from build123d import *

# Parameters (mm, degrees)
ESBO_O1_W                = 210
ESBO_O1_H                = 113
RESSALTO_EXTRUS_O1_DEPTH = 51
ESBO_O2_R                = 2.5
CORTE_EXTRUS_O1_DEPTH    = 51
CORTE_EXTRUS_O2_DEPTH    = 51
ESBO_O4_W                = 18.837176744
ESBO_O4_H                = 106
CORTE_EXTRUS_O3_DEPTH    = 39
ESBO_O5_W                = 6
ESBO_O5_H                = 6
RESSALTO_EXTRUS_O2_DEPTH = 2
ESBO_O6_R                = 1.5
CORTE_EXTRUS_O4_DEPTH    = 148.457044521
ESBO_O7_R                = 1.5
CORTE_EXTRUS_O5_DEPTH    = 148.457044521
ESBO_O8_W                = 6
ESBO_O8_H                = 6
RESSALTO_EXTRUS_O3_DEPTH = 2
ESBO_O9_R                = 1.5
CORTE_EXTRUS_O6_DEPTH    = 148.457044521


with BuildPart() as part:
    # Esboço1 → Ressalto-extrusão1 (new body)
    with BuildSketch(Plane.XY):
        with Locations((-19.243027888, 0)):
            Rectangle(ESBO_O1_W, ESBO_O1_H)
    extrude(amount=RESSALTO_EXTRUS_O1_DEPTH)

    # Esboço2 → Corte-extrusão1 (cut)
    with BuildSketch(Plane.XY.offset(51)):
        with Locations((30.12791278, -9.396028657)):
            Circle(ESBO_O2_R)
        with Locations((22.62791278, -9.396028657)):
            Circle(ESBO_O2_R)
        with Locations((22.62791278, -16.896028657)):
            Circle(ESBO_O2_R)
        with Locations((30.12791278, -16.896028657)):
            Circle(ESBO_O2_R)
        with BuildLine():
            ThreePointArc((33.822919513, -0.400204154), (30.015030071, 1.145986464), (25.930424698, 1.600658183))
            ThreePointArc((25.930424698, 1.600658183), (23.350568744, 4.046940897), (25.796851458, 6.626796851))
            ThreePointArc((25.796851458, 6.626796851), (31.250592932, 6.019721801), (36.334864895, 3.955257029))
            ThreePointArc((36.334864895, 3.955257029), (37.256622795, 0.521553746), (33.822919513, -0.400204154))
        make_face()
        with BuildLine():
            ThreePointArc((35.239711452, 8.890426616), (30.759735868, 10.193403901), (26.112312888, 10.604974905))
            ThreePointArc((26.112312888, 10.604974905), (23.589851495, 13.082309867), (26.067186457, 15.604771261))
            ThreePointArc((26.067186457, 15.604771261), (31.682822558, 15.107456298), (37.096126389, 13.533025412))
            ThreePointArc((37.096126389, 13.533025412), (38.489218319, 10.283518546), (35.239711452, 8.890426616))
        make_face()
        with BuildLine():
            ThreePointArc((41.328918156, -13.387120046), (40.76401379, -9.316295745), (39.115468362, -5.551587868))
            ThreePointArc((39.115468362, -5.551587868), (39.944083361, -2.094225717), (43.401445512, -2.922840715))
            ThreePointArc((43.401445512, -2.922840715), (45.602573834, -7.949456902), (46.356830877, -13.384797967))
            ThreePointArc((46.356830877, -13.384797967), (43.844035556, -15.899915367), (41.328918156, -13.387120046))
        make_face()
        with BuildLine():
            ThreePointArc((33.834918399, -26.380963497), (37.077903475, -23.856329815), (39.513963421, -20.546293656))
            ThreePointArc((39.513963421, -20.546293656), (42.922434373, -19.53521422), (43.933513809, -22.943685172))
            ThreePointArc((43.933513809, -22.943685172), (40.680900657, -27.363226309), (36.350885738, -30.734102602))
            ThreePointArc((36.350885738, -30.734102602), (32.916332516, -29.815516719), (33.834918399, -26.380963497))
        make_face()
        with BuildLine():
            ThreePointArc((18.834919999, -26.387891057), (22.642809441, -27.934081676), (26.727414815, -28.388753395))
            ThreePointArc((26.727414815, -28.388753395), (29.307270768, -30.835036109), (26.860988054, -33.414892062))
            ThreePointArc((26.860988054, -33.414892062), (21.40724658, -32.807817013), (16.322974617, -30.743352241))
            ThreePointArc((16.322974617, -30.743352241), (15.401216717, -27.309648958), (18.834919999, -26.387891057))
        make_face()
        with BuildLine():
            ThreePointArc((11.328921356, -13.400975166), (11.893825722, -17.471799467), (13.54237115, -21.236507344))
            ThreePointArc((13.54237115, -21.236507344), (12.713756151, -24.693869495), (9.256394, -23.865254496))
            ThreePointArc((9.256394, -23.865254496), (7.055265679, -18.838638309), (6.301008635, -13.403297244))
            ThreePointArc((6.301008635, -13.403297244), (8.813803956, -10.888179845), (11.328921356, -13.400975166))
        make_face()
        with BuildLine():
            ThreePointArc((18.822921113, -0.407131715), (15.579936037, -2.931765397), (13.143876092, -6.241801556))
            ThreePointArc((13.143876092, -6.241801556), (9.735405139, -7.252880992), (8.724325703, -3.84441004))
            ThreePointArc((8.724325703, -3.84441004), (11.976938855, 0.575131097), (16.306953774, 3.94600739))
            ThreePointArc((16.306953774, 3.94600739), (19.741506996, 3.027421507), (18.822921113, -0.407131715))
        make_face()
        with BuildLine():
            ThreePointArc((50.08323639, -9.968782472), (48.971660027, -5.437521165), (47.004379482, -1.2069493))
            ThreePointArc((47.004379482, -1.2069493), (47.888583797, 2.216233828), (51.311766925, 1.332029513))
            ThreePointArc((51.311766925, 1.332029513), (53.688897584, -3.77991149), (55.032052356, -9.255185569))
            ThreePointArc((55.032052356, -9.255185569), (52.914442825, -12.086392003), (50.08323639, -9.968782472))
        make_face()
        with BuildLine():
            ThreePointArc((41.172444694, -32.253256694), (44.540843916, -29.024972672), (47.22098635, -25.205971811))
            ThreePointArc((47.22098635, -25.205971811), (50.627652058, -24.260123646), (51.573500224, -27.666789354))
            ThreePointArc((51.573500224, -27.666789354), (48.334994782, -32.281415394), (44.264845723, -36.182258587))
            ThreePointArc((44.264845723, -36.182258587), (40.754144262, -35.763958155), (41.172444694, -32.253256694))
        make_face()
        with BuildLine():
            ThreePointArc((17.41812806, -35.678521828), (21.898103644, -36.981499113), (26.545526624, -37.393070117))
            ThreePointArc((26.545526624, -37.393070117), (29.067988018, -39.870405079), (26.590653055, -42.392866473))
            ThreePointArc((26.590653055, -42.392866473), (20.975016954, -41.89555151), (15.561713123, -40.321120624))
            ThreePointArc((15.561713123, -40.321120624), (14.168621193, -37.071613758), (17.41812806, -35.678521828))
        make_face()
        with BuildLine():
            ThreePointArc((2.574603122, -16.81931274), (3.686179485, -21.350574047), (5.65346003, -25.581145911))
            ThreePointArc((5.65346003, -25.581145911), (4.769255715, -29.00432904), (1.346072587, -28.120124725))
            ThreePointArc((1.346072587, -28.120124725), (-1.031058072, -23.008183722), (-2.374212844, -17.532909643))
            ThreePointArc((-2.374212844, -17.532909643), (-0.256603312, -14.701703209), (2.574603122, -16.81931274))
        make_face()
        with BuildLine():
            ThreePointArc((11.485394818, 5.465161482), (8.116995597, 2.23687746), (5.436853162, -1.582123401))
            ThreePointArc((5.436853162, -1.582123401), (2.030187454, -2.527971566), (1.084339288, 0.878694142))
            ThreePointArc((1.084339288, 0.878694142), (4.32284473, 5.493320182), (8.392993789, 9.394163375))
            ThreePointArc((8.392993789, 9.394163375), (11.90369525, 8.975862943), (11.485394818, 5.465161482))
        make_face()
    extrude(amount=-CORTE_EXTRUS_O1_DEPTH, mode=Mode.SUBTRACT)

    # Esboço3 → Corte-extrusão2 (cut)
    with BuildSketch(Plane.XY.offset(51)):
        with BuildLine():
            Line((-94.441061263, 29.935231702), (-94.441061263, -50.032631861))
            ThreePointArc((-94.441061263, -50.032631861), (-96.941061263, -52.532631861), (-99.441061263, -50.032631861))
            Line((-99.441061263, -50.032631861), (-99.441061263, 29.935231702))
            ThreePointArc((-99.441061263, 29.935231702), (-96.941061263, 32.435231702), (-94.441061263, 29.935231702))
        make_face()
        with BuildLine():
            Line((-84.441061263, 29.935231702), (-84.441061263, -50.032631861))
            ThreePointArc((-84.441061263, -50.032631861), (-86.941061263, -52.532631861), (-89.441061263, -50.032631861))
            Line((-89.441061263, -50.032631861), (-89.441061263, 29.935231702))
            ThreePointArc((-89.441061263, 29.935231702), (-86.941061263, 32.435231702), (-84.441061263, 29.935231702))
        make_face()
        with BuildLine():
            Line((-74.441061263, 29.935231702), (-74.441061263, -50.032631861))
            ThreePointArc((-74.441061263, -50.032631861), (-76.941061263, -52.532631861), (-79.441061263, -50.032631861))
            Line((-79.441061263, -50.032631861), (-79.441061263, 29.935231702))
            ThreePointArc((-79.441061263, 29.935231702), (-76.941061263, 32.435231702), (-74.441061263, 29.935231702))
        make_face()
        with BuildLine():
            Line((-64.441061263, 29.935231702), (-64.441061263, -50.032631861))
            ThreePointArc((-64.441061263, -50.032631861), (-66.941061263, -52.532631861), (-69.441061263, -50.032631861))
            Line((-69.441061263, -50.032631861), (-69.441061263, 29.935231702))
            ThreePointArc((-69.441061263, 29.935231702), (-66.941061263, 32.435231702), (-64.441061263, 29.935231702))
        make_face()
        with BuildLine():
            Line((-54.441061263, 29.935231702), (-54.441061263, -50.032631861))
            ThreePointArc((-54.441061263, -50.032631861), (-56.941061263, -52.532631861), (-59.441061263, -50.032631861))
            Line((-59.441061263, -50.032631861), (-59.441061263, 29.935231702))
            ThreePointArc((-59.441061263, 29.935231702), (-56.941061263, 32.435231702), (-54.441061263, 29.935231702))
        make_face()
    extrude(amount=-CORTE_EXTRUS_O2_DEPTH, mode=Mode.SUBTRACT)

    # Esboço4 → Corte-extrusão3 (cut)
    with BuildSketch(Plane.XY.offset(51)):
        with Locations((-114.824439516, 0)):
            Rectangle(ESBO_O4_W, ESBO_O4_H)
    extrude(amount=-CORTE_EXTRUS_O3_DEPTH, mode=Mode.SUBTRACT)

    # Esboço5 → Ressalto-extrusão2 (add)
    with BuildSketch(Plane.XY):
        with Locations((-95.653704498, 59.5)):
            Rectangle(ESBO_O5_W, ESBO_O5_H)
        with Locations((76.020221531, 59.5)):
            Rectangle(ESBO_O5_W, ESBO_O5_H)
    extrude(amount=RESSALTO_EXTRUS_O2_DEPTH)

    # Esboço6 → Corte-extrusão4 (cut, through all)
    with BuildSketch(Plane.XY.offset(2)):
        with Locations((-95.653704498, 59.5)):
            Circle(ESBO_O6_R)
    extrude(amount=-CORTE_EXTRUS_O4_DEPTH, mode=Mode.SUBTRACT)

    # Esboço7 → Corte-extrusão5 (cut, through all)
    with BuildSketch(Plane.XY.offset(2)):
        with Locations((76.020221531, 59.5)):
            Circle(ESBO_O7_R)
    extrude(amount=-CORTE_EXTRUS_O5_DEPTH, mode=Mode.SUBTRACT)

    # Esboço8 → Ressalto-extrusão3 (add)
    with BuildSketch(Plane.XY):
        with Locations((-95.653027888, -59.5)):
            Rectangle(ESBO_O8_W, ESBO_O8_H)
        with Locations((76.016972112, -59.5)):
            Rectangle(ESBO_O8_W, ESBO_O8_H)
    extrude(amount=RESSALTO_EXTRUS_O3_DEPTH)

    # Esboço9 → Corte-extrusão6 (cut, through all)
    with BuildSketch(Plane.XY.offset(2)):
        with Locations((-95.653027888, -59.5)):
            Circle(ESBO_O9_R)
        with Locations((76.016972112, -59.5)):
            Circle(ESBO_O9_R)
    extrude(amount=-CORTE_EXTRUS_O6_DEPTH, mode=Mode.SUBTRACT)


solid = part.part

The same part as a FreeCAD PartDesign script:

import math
import FreeCAD as App
import Part
import Sketcher
Q = App.Units.Quantity


def add_polygon(sketch, points):
    """Adds a closed chain of lines whose ends are joined by coincident constraints."""
    first, n = sketch.GeometryCount, len(points)
    for a, b in zip(points, points[1:] + points[:1]):
        sketch.addGeometry(Part.LineSegment(App.Vector(*a, 0), App.Vector(*b, 0)), False)
    for i in range(n):
        sketch.addConstraint(Sketcher.Constraint("Coincident", first + i, 2, first + (i + 1) % n, 1))

doc = App.newDocument("Part")
body = doc.addObject("PartDesign::Body", "Body")

# Sketch on XY plane
sketch1 = body.newObject("Sketcher::SketchObject", "Sketch")
sketch1.AttachmentSupport = (doc.getObject("XY_Plane"), [""])
sketch1.MapMode = "FlatFace"
add_polygon(sketch1, [(-124.243028, 56.5), (-124.243028, -56.5), (85.756972, -56.5), (85.756972, 56.5)])  # lines 0-3
sketch1.addConstraint(Sketcher.Constraint("Vertical", 0))
sketch1.addConstraint(Sketcher.Constraint("Horizontal", 1))
sketch1.addConstraint(Sketcher.Constraint("Vertical", 2))
sketch1.addConstraint(Sketcher.Constraint("Horizontal", 3))
sketch1.addConstraint(Sketcher.Constraint("DistanceX", 1, 1, 1, 2, Q("210 mm")))
sketch1.addConstraint(Sketcher.Constraint("DistanceY", 0, 2, 0, 1, Q("113 mm")))
sketch1.addConstraint(Sketcher.Constraint("DistanceY", 0, 2, -1, 1, Q("56.5 mm")))
sketch1.addConstraint(Sketcher.Constraint("DistanceX", 0, 2, -1, 1, Q("124.243028 mm")))
pad1 = body.newObject("PartDesign::Pad", "Pad")
pad1.Profile = sketch1
pad1.Length = 51

# Sketch on XY plane
sketch2 = body.newObject("Sketcher::SketchObject", "Sketch001")
sketch2.AttachmentSupport = (doc.getObject("XY_Plane"), [""])
sketch2.MapMode = "FlatFace"
sketch2.AttachmentOffset = App.Placement(App.Vector(0, 0, 51), App.Rotation())
sketch2.addGeometry(Part.Circle(App.Vector(30.127913, -9.396029, 0), App.Vector(0, 0, 1), 2.5), False)
sketch2.addGeometry(Part.Circle(App.Vector(22.627913, -9.396029, 0), App.Vector(0, 0, 1), 2.5), False)
sketch2.addGeometry(Part.Circle(App.Vector(22.627913, -16.896029, 0), App.Vector(0, 0, 1), 2.5), False)
sketch2.addGeometry(Part.Circle(App.Vector(30.127913, -16.896029, 0), App.Vector(0, 0, 1), 2.5), False)
sketch2.addGeometry(Part.ArcOfCircle(Part.Circle(App.Vector(26.32892, -13.394048, 0), App.Vector(0, 0, 1), 15), math.radians(60.026461), math.radians(91.522318)), False)
sketch2.addGeometry(Part.ArcOfCircle(Part.Circle(App.Vector(35.078892, 1.777526, 0), App.Vector(0, 0, 1), 2.513957), math.radians(-119.973539), math.radians(60.026461)), False)
sketch2.addGeometry(Part.ArcOfCircle(Part.Circle(App.Vector(26.32892, -13.394048, 0), App.Vector(0, 0, 1), 20.027913), math.radians(60.026461), math.radians(91.522318)), False)
sketch2.addGeometry(Part.ArcOfCircle(Part.Circle(App.Vector(25.863638, 4.113728, 0), App.Vector(0, 0, 1), 2.513957), math.radians(91.522318), math.radians(271.522318)), False)
sketch2.addGeometry(Part.ArcOfCircle(Part.Circle(App.Vector(26.32892, -13.394048, 0), App.Vector(0, 0, 1), 24), math.radians(68.205236), math.radians(90.517118)), False)
sketch2.addGeometry(Part.ArcOfCircle(Part.Circle(App.Vector(36.167919, 11.211726, 0), App.Vector(0, 0, 1), 2.5), math.radians(-111.794764), math.radians(68.205236)), False)
sketch2.addGeometry(Part.ArcOfCircle(Part.Circle(App.Vector(26.32892, -13.394048, 0), App.Vector(0, 0, 1), 29), math.radians(68.205236), math.radians(90.517118)), False)
sketch2.addGeometry(Part.ArcOfCircle(Part.Circle(App.Vector(26.08975, 13.104873, 0), App.Vector(0, 0, 1), 2.5), math.radians(90.517118), math.radians(270.517118)), False)
sketch2.addGeometry(Part.ArcOfCircle(Part.Circle(App.Vector(26.32892, -13.394048, 0), App.Vector(0, 0, 1), 15), math.radians(0.026461), math.radians(31.522318)), False)
sketch2.addGeometry(Part.ArcOfCircle(Part.Circle(App.Vector(43.842875, -13.385959, 0), App.Vector(0, 0, 1), 2.513957), math.radians(-179.973539), math.radians(0.026461)), False)
sketch2.addGeometry(Part.ArcOfCircle(Part.Circle(App.Vector(26.32892, -13.394048, 0), App.Vector(0, 0, 1), 20.027913), math.radians(0.026461), math.radians(31.522318)), False)
sketch2.addGeometry(Part.ArcOfCircle(Part.Circle(App.Vector(41.258457, -4.237214, 0), App.Vector(0, 0, 1), 2.513957), math.radians(31.522318), math.radians(211.522318)), False)
sketch2.addGeometry(Part.ArcOfCircle(Part.Circle(App.Vector(26.32892, -13.394048, 0), App.Vector(0, 0, 1), 15), math.radians(-59.973539), math.radians(-28.477682)), False)
sketch2.addGeometry(Part.ArcOfCircle(Part.Circle(App.Vector(35.092902, -28.557533, 0), App.Vector(0, 0, 1), 2.513957), math.radians(120.026461), math.radians(300.026461)), False)
sketch2.addGeometry(Part.ArcOfCircle(Part.Circle(App.Vector(26.32892, -13.394048, 0), App.Vector(0, 0, 1), 20.027913), math.radians(-59.973539), math.radians(-28.477682)), False)
sketch2.addGeometry(Part.ArcOfCircle(Part.Circle(App.Vector(41.723739, -21.744989, 0), App.Vector(0, 0, 1), 2.513957), math.radians(-28.477682), math.radians(151.522318)), False)
sketch2.addGeometry(Part.ArcOfCircle(Part.Circle(App.Vector(26.32892, -13.394048, 0), App.Vector(0, 0, 1), 15), math.radians(-119.973539), math.radians(-88.477682)), False)
sketch2.addGeometry(Part.ArcOfCircle(Part.Circle(App.Vector(17.578947, -28.565622, 0), App.Vector(0, 0, 1), 2.513957), math.radians(60.026461), math.radians(240.026461)), False)
sketch2.addGeometry(Part.ArcOfCircle(Part.Circle(App.Vector(26.32892, -13.394048, 0), App.Vector(0, 0, 1), 20.027913), math.radians(-119.973539), math.radians(-88.477682)), False)
sketch2.addGeometry(Part.ArcOfCircle(Part.Circle(App.Vector(26.794201, -30.901823, 0), App.Vector(0, 0, 1), 2.513957), math.radians(-88.477682), math.radians(91.522318)), False)
sketch2.addGeometry(Part.ArcOfCircle(Part.Circle(App.Vector(26.32892, -13.394048, 0), App.Vector(0, 0, 1), 15), math.radians(-179.973539), math.radians(-148.477682)), False)
sketch2.addGeometry(Part.ArcOfCircle(Part.Circle(App.Vector(8.814965, -13.402136, 0), App.Vector(0, 0, 1), 2.513957), math.radians(0.026461), math.radians(180.026461)), False)
sketch2.addGeometry(Part.ArcOfCircle(Part.Circle(App.Vector(26.32892, -13.394048, 0), App.Vector(0, 0, 1), 20.027913), math.radians(-179.973539), math.radians(-148.477682)), False)
sketch2.addGeometry(Part.ArcOfCircle(Part.Circle(App.Vector(11.399383, -22.550881, 0), App.Vector(0, 0, 1), 2.513957), math.radians(-148.477682), math.radians(31.522318)), False)
sketch2.addGeometry(Part.ArcOfCircle(Part.Circle(App.Vector(26.32892, -13.394048, 0), App.Vector(0, 0, 1), 15), math.radians(120.026461), math.radians(151.522318)), False)
sketch2.addGeometry(Part.ArcOfCircle(Part.Circle(App.Vector(17.564937, 1.769438, 0), App.Vector(0, 0, 1), 2.513957), math.radians(-59.973539), math.radians(120.026461)), False)
sketch2.addGeometry(Part.ArcOfCircle(Part.Circle(App.Vector(26.32892, -13.394048, 0), App.Vector(0, 0, 1), 20.027913), math.radians(120.026461), math.radians(151.522318)), False)
sketch2.addGeometry(Part.ArcOfCircle(Part.Circle(App.Vector(10.934101, -5.043106, 0), App.Vector(0, 0, 1), 2.513957), math.radians(151.522318), math.radians(331.522318)), False)
sketch2.addGeometry(Part.ArcOfCircle(Part.Circle(App.Vector(26.32892, -13.394048, 0), App.Vector(0, 0, 1), 24), math.radians(8.205236), math.radians(30.517118)), False)
sketch2.addGeometry(Part.ArcOfCircle(Part.Circle(App.Vector(52.557644, -9.611984, 0), App.Vector(0, 0, 1), 2.5), math.radians(-171.794764), math.radians(8.205236)), False)
sketch2.addGeometry(Part.ArcOfCircle(Part.Circle(App.Vector(26.32892, -13.394048, 0), App.Vector(0, 0, 1), 29), math.radians(8.205236), math.radians(30.517118)), False)
sketch2.addGeometry(Part.ArcOfCircle(Part.Circle(App.Vector(49.158073, 0.06254, 0), App.Vector(0, 0, 1), 2.5), math.radians(30.517118), math.radians(210.517118)), False)
sketch2.addGeometry(Part.ArcOfCircle(Part.Circle(App.Vector(26.32892, -13.394048, 0), App.Vector(0, 0, 1), 24), math.radians(-51.794764), math.radians(-29.482882)), False)
sketch2.addGeometry(Part.ArcOfCircle(Part.Circle(App.Vector(42.718645, -34.217758, 0), App.Vector(0, 0, 1), 2.5), math.radians(128.205236), math.radians(308.205236)), False)
sketch2.addGeometry(Part.ArcOfCircle(Part.Circle(App.Vector(26.32892, -13.394048, 0), App.Vector(0, 0, 1), 29), math.radians(-51.794764), math.radians(-29.482882)), False)
sketch2.addGeometry(Part.ArcOfCircle(Part.Circle(App.Vector(49.397243, -26.436381, 0), App.Vector(0, 0, 1), 2.5), math.radians(-29.482882), math.radians(150.517118)), False)
sketch2.addGeometry(Part.ArcOfCircle(Part.Circle(App.Vector(26.32892, -13.394048, 0), App.Vector(0, 0, 1), 24), math.radians(-111.794764), math.radians(-89.482882)), False)
sketch2.addGeometry(Part.ArcOfCircle(Part.Circle(App.Vector(16.489921, -37.999821, 0), App.Vector(0, 0, 1), 2.5), math.radians(68.205236), math.radians(248.205236)), False)
sketch2.addGeometry(Part.ArcOfCircle(Part.Circle(App.Vector(26.32892, -13.394048, 0), App.Vector(0, 0, 1), 29), math.radians(-111.794764), math.radians(-89.482882)), False)
sketch2.addGeometry(Part.ArcOfCircle(Part.Circle(App.Vector(26.56809, -39.892968, 0), App.Vector(0, 0, 1), 2.5), math.radians(-89.482882), math.radians(90.517118)), False)
sketch2.addGeometry(Part.ArcOfCircle(Part.Circle(App.Vector(26.32892, -13.394048, 0), App.Vector(0, 0, 1), 24), math.radians(-171.794764), math.radians(-149.482882)), False)
sketch2.addGeometry(Part.ArcOfCircle(Part.Circle(App.Vector(0.100195, -17.176111, 0), App.Vector(0, 0, 1), 2.5), math.radians(8.205236), math.radians(188.205236)), False)
sketch2.addGeometry(Part.ArcOfCircle(Part.Circle(App.Vector(26.32892, -13.394048, 0), App.Vector(0, 0, 1), 29), math.radians(-171.794764), math.radians(-149.482882)), False)
sketch2.addGeometry(Part.ArcOfCircle(Part.Circle(App.Vector(3.499766, -26.850635, 0), App.Vector(0, 0, 1), 2.5), math.radians(-149.482882), math.radians(30.517118)), False)
sketch2.addGeometry(Part.ArcOfCircle(Part.Circle(App.Vector(26.32892, -13.394048, 0), App.Vector(0, 0, 1), 24), math.radians(128.205236), math.radians(150.517118)), False)
sketch2.addGeometry(Part.ArcOfCircle(Part.Circle(App.Vector(9.939194, 7.429662, 0), App.Vector(0, 0, 1), 2.5), math.radians(-51.794764), math.radians(128.205236)), False)
sketch2.addGeometry(Part.ArcOfCircle(Part.Circle(App.Vector(26.32892, -13.394048, 0), App.Vector(0, 0, 1), 29), math.radians(128.205236), math.radians(150.517118)), False)
sketch2.addGeometry(Part.ArcOfCircle(Part.Circle(App.Vector(3.260596, -0.351715, 0), App.Vector(0, 0, 1), 2.5), math.radians(150.517118), math.radians(330.517118)), False)
sketch2.addConstraint(Sketcher.Constraint("Tangent", 4, 1, 5, 1))
sketch2.addConstraint(Sketcher.Constraint("Tangent", 5, 2, 6, 1))
sketch2.addConstraint(Sketcher.Constraint("Tangent", 6, 2, 7, 1))
sketch2.addConstraint(Sketcher.Constraint("Tangent", 7, 2, 4, 2))
sketch2.addConstraint(Sketcher.Constraint("Tangent", 8, 1, 9, 1))
sketch2.addConstraint(Sketcher.Constraint("Tangent", 9, 2, 10, 1))
sketch2.addConstraint(Sketcher.Constraint("Tangent", 10, 2, 11, 1))
sketch2.addConstraint(Sketcher.Constraint("Tangent", 11, 2, 8, 2))
sketch2.addConstraint(Sketcher.Constraint("Tangent", 12, 1, 13, 1))
sketch2.addConstraint(Sketcher.Constraint("Tangent", 13, 2, 14, 1))
sketch2.addConstraint(Sketcher.Constraint("Tangent", 14, 2, 15, 1))
sketch2.addConstraint(Sketcher.Constraint("Tangent", 15, 2, 12, 2))
sketch2.addConstraint(Sketcher.Constraint("Tangent", 16, 1, 17, 1))
sketch2.addConstraint(Sketcher.Constraint("Tangent", 17, 2, 18, 1))
sketch2.addConstraint(Sketcher.Constraint("Tangent", 18, 2, 19, 1))
sketch2.addConstraint(Sketcher.Constraint("Tangent", 19, 2, 16, 2))
sketch2.addConstraint(Sketcher.Constraint("Tangent", 20, 1, 21, 1))
sketch2.addConstraint(Sketcher.Constraint("Tangent", 21, 2, 22, 1))
sketch2.addConstraint(Sketcher.Constraint("Tangent", 22, 2, 23, 1))
sketch2.addConstraint(Sketcher.Constraint("Tangent", 23, 2, 20, 2))
sketch2.addConstraint(Sketcher.Constraint("Tangent", 24, 1, 25, 1))
sketch2.addConstraint(Sketcher.Constraint("Tangent", 25, 2, 26, 1))
sketch2.addConstraint(Sketcher.Constraint("Tangent", 26, 2, 27, 1))
sketch2.addConstraint(Sketcher.Constraint("Tangent", 27, 2, 24, 2))
sketch2.addConstraint(Sketcher.Constraint("Tangent", 28, 1, 29, 1))
sketch2.addConstraint(Sketcher.Constraint("Tangent", 29, 2, 30, 1))
sketch2.addConstraint(Sketcher.Constraint("Tangent", 30, 2, 31, 1))
sketch2.addConstraint(Sketcher.Constraint("Tangent", 31, 2, 28, 2))
sketch2.addConstraint(Sketcher.Constraint("Tangent", 32, 1, 33, 1))
sketch2.addConstraint(Sketcher.Constraint("Tangent", 33, 2, 34, 1))
sketch2.addConstraint(Sketcher.Constraint("Tangent", 34, 2, 35, 1))
sketch2.addConstraint(Sketcher.Constraint("Tangent", 35, 2, 32, 2))
sketch2.addConstraint(Sketcher.Constraint("Tangent", 36, 1, 37, 1))
sketch2.addConstraint(Sketcher.Constraint("Tangent", 37, 2, 38, 1))
sketch2.addConstraint(Sketcher.Constraint("Tangent", 38, 2, 39, 1))
sketch2.addConstraint(Sketcher.Constraint("Tangent", 39, 2, 36, 2))
sketch2.addConstraint(Sketcher.Constraint("Tangent", 40, 1, 41, 1))
sketch2.addConstraint(Sketcher.Constraint("Tangent", 41, 2, 42, 1))
sketch2.addConstraint(Sketcher.Constraint("Tangent", 42, 2, 43, 1))
sketch2.addConstraint(Sketcher.Constraint("Tangent", 43, 2, 40, 2))
sketch2.addConstraint(Sketcher.Constraint("Tangent", 44, 1, 45, 1))
sketch2.addConstraint(Sketcher.Constraint("Tangent", 45, 2, 46, 1))
sketch2.addConstraint(Sketcher.Constraint("Tangent", 46, 2, 47, 1))
sketch2.addConstraint(Sketcher.Constraint("Tangent", 47, 2, 44, 2))
sketch2.addConstraint(Sketcher.Constraint("Tangent", 48, 1, 49, 1))
sketch2.addConstraint(Sketcher.Constraint("Tangent", 49, 2, 50, 1))
sketch2.addConstraint(Sketcher.Constraint("Tangent", 50, 2, 51, 1))
sketch2.addConstraint(Sketcher.Constraint("Tangent", 51, 2, 48, 2))
sketch2.addConstraint(Sketcher.Constraint("Coincident", 6, 3, 4, 3))
sketch2.addConstraint(Sketcher.Constraint("Coincident", 8, 3, 4, 3))
sketch2.addConstraint(Sketcher.Constraint("Coincident", 10, 3, 4, 3))
sketch2.addConstraint(Sketcher.Constraint("Coincident", 12, 3, 4, 3))
sketch2.addConstraint(Sketcher.Constraint("Coincident", 14, 3, 4, 3))
sketch2.addConstraint(Sketcher.Constraint("Coincident", 16, 3, 4, 3))
sketch2.addConstraint(Sketcher.Constraint("Coincident", 18, 3, 4, 3))
sketch2.addConstraint(Sketcher.Constraint("Coincident", 20, 3, 4, 3))
sketch2.addConstraint(Sketcher.Constraint("Coincident", 22, 3, 4, 3))
sketch2.addConstraint(Sketcher.Constraint("Coincident", 24, 3, 4, 3))
sketch2.addConstraint(Sketcher.Constraint("Coincident", 26, 3, 4, 3))
sketch2.addConstraint(Sketcher.Constraint("Coincident", 28, 3, 4, 3))
sketch2.addConstraint(Sketcher.Constraint("Coincident", 30, 3, 4, 3))
sketch2.addConstraint(Sketcher.Constraint("Coincident", 32, 3, 4, 3))
sketch2.addConstraint(Sketcher.Constraint("Coincident", 34, 3, 4, 3))
sketch2.addConstraint(Sketcher.Constraint("Coincident", 36, 3, 4, 3))
sketch2.addConstraint(Sketcher.Constraint("Coincident", 38, 3, 4, 3))
sketch2.addConstraint(Sketcher.Constraint("Coincident", 40, 3, 4, 3))
sketch2.addConstraint(Sketcher.Constraint("Coincident", 42, 3, 4, 3))
sketch2.addConstraint(Sketcher.Constraint("Coincident", 44, 3, 4, 3))
sketch2.addConstraint(Sketcher.Constraint("Coincident", 46, 3, 4, 3))
sketch2.addConstraint(Sketcher.Constraint("Coincident", 48, 3, 4, 3))
sketch2.addConstraint(Sketcher.Constraint("Coincident", 50, 3, 4, 3))
sketch2.addConstraint(Sketcher.Constraint("Equal", 0, 1))
sketch2.addConstraint(Sketcher.Constraint("Equal", 1, 2))
sketch2.addConstraint(Sketcher.Constraint("Equal", 2, 3))
sketch2.addConstraint(Sketcher.Constraint("Equal", 3, 9))
sketch2.addConstraint(Sketcher.Constraint("Equal", 4, 12))
sketch2.addConstraint(Sketcher.Constraint("Equal", 7, 13))
sketch2.addConstraint(Sketcher.Constraint("Equal", 12, 16))
sketch2.addConstraint(Sketcher.Constraint("Equal", 15, 17))
sketch2.addConstraint(Sketcher.Constraint("Equal", 16, 20))
sketch2.addConstraint(Sketcher.Constraint("Equal", 19, 21))
sketch2.addConstraint(Sketcher.Constraint("Equal", 20, 24))
sketch2.addConstraint(Sketcher.Constraint("Equal", 23, 25))
sketch2.addConstraint(Sketcher.Constraint("Equal", 24, 28))
sketch2.addConstraint(Sketcher.Constraint("Equal", 27, 29))
sketch2.addConstraint(Sketcher.Constraint("Equal", 8, 32))
sketch2.addConstraint(Sketcher.Constraint("Equal", 11, 33))
sketch2.addConstraint(Sketcher.Constraint("Equal", 32, 36))
sketch2.addConstraint(Sketcher.Constraint("Equal", 35, 37))
sketch2.addConstraint(Sketcher.Constraint("Equal", 36, 40))
sketch2.addConstraint(Sketcher.Constraint("Equal", 39, 41))
sketch2.addConstraint(Sketcher.Constraint("Equal", 40, 44))
sketch2.addConstraint(Sketcher.Constraint("Equal", 43, 45))
sketch2.addConstraint(Sketcher.Constraint("Equal", 44, 48))
sketch2.addConstraint(Sketcher.Constraint("Equal", 47, 49))
sketch2.addConstraint(Sketcher.Constraint("Horizontal", 0, 3, 1, 3))
sketch2.addConstraint(Sketcher.Constraint("Horizontal", 2, 3, 3, 3))
sketch2.addConstraint(Sketcher.Constraint("Vertical", 1, 3, 2, 3))
sketch2.addConstraint(Sketcher.Constraint("Vertical", 0, 3, 3, 3))
sketch2.addConstraint(Sketcher.Constraint("Diameter", 0, Q("5 mm")))
sketch2.addConstraint(Sketcher.Constraint("Radius", 4, Q("15 mm")))
sketch2.addConstraint(Sketcher.Constraint("Radius", 8, Q("24 mm")))
sketch2.addConstraint(Sketcher.Constraint("Radius", 5, Q("2.513957 mm")))
sketch2.addConstraint(Sketcher.Constraint("DistanceX", -1, 1, 23, 3, Q("26.794201 mm")))
sketch2.addConstraint(Sketcher.Constraint("DistanceX", -1, 1, 31, 3, Q("10.934101 mm")))
sketch2.addConstraint(Sketcher.Constraint("DistanceY", 31, 2, -1, 1, Q("6.241802 mm")))
sketch2.addConstraint(Sketcher.Constraint("DistanceX", -1, 1, 38, 2, Q("51.5735 mm")))
sketch2.addConstraint(Sketcher.Constraint("DistanceY", 0, 3, -1, 1, Q("9.396029 mm")))
sketch2.addConstraint(Sketcher.Constraint("DistanceY", 2, 3, -1, 1, Q("16.896029 mm")))
sketch2.addConstraint(Sketcher.Constraint("DistanceX", -1, 1, 4, 3, Q("26.32892 mm")))
sketch2.addConstraint(Sketcher.Constraint("DistanceX", -1, 1, 7, 3, Q("25.863638 mm")))
sketch2.addConstraint(Sketcher.Constraint("DistanceX", -1, 1, 9, 3, Q("36.167919 mm")))
sketch2.addConstraint(Sketcher.Constraint("DistanceX", -1, 1, 11, 3, Q("26.08975 mm")))
sketch2.addConstraint(Sketcher.Constraint("DistanceY", 13, 3, -1, 1, Q("13.385959 mm")))
sketch2.addConstraint(Sketcher.Constraint("DistanceX", -1, 1, 19, 3, Q("41.723739 mm")))
sketch2.addConstraint(Sketcher.Constraint("DistanceY", 21, 3, -1, 1, Q("28.565622 mm")))
sketch2.addConstraint(Sketcher.Constraint("DistanceY", 27, 3, -1, 1, Q("22.550881 mm")))
sketch2.addConstraint(Sketcher.Constraint("DistanceY", -1, 1, 35, 3, Q("0.06254 mm")))
sketch2.addConstraint(Sketcher.Constraint("DistanceX", -1, 1, 41, 3, Q("16.489921 mm")))
sketch2.addConstraint(Sketcher.Constraint("DistanceX", -1, 1, 43, 3, Q("26.56809 mm")))
sketch2.addConstraint(Sketcher.Constraint("DistanceY", 45, 3, -1, 1, Q("17.176111 mm")))
sketch2.addConstraint(Sketcher.Constraint("DistanceX", -1, 1, 4, 1, Q("33.82292 mm")))
sketch2.addConstraint(Sketcher.Constraint("DistanceY", 14, 2, -1, 1, Q("2.922841 mm")))
sketch2.addConstraint(Sketcher.Constraint("DistanceX", -1, 1, 16, 1, Q("33.834918 mm")))
sketch2.addConstraint(Sketcher.Constraint("DistanceX", -1, 1, 28, 1, Q("18.822921 mm")))
sketch2.addConstraint(Sketcher.Constraint("DistanceY", 37, 2, -1, 1, Q("36.182259 mm")))
sketch2.addConstraint(Sketcher.Constraint("DistanceX", -1, 1, 47, 2, Q("5.65346 mm")))
sketch2.addConstraint(Sketcher.Constraint("DistanceY", -1, 1, 48, 1, Q("5.465161 mm")))
sketch2.addConstraint(Sketcher.Constraint("DistanceX", -1, 1, 50, 2, Q("1.084339 mm")))
sketch2.addConstraint(Sketcher.Constraint("DistanceX", -1, 1, 0, 3, Q("30.127913 mm")))
sketch2.addConstraint(Sketcher.Constraint("DistanceX", -1, 1, 1, 3, Q("22.627913 mm")))
sketch2.addConstraint(Sketcher.Constraint("DistanceY", 25, 3, -1, 1, Q("13.402136 mm")))
sketch2.addConstraint(Sketcher.Constraint("DistanceX", -1, 1, 33, 3, Q("52.557644 mm")))
pocket1 = body.newObject("PartDesign::Pocket", "Pocket")
pocket1.Profile = sketch2
pocket1.Length = 51

# Sketch on XY plane
sketch3 = body.newObject("Sketcher::SketchObject", "Sketch002")
sketch3.AttachmentSupport = (doc.getObject("XY_Plane"), [""])
sketch3.MapMode = "FlatFace"
sketch3.AttachmentOffset = App.Placement(App.Vector(0, 0, 51), App.Rotation())
sketch3.addGeometry(Part.LineSegment(App.Vector(-94.441061, -50.032632, 0), App.Vector(-94.441061, 29.935232, 0)), False)
sketch3.addGeometry(Part.ArcOfCircle(Part.Circle(App.Vector(-96.941061, 29.935232, 0), App.Vector(0, 0, 1), 2.5), math.radians(0), math.radians(180)), False)
sketch3.addGeometry(Part.LineSegment(App.Vector(-99.441061, 29.935232, 0), App.Vector(-99.441061, -50.032632, 0)), False)
sketch3.addGeometry(Part.ArcOfCircle(Part.Circle(App.Vector(-96.941061, -50.032632, 0), App.Vector(0, 0, 1), 2.5), math.radians(180), math.radians(360)), False)
sketch3.addGeometry(Part.LineSegment(App.Vector(-84.441061, -50.032632, 0), App.Vector(-84.441061, 29.935232, 0)), False)
sketch3.addGeometry(Part.ArcOfCircle(Part.Circle(App.Vector(-86.941061, 29.935232, 0), App.Vector(0, 0, 1), 2.5), math.radians(0), math.radians(180)), False)
sketch3.addGeometry(Part.LineSegment(App.Vector(-89.441061, 29.935232, 0), App.Vector(-89.441061, -50.032632, 0)), False)
sketch3.addGeometry(Part.ArcOfCircle(Part.Circle(App.Vector(-86.941061, -50.032632, 0), App.Vector(0, 0, 1), 2.5), math.radians(180), math.radians(360)), False)
sketch3.addGeometry(Part.LineSegment(App.Vector(-74.441061, -50.032632, 0), App.Vector(-74.441061, 29.935232, 0)), False)
sketch3.addGeometry(Part.ArcOfCircle(Part.Circle(App.Vector(-76.941061, 29.935232, 0), App.Vector(0, 0, 1), 2.5), math.radians(0), math.radians(180)), False)
sketch3.addGeometry(Part.LineSegment(App.Vector(-79.441061, 29.935232, 0), App.Vector(-79.441061, -50.032632, 0)), False)
sketch3.addGeometry(Part.ArcOfCircle(Part.Circle(App.Vector(-76.941061, -50.032632, 0), App.Vector(0, 0, 1), 2.5), math.radians(180), math.radians(360)), False)
sketch3.addGeometry(Part.LineSegment(App.Vector(-64.441061, -50.032632, 0), App.Vector(-64.441061, 29.935232, 0)), False)
sketch3.addGeometry(Part.ArcOfCircle(Part.Circle(App.Vector(-66.941061, 29.935232, 0), App.Vector(0, 0, 1), 2.5), math.radians(0), math.radians(180)), False)
sketch3.addGeometry(Part.LineSegment(App.Vector(-69.441061, 29.935232, 0), App.Vector(-69.441061, -50.032632, 0)), False)
sketch3.addGeometry(Part.ArcOfCircle(Part.Circle(App.Vector(-66.941061, -50.032632, 0), App.Vector(0, 0, 1), 2.5), math.radians(180), math.radians(360)), False)
sketch3.addGeometry(Part.LineSegment(App.Vector(-54.441061, -50.032632, 0), App.Vector(-54.441061, 29.935232, 0)), False)
sketch3.addGeometry(Part.ArcOfCircle(Part.Circle(App.Vector(-56.941061, 29.935232, 0), App.Vector(0, 0, 1), 2.5), math.radians(0), math.radians(180)), False)
sketch3.addGeometry(Part.LineSegment(App.Vector(-59.441061, 29.935232, 0), App.Vector(-59.441061, -50.032632, 0)), False)
sketch3.addGeometry(Part.ArcOfCircle(Part.Circle(App.Vector(-56.941061, -50.032632, 0), App.Vector(0, 0, 1), 2.5), math.radians(180), math.radians(360)), False)
sketch3.addConstraint(Sketcher.Constraint("Tangent", 0, 2, 1, 1))
sketch3.addConstraint(Sketcher.Constraint("Tangent", 1, 2, 2, 1))
sketch3.addConstraint(Sketcher.Constraint("Tangent", 2, 2, 3, 1))
sketch3.addConstraint(Sketcher.Constraint("Tangent", 3, 2, 0, 1))
sketch3.addConstraint(Sketcher.Constraint("Tangent", 4, 2, 5, 1))
sketch3.addConstraint(Sketcher.Constraint("Tangent", 5, 2, 6, 1))
sketch3.addConstraint(Sketcher.Constraint("Tangent", 6, 2, 7, 1))
sketch3.addConstraint(Sketcher.Constraint("Tangent", 7, 2, 4, 1))
sketch3.addConstraint(Sketcher.Constraint("Tangent", 8, 2, 9, 1))
sketch3.addConstraint(Sketcher.Constraint("Tangent", 9, 2, 10, 1))
sketch3.addConstraint(Sketcher.Constraint("Tangent", 10, 2, 11, 1))
sketch3.addConstraint(Sketcher.Constraint("Tangent", 11, 2, 8, 1))
sketch3.addConstraint(Sketcher.Constraint("Tangent", 12, 2, 13, 1))
sketch3.addConstraint(Sketcher.Constraint("Tangent", 13, 2, 14, 1))
sketch3.addConstraint(Sketcher.Constraint("Tangent", 14, 2, 15, 1))
sketch3.addConstraint(Sketcher.Constraint("Tangent", 15, 2, 12, 1))
sketch3.addConstraint(Sketcher.Constraint("Tangent", 16, 2, 17, 1))
sketch3.addConstraint(Sketcher.Constraint("Tangent", 17, 2, 18, 1))
sketch3.addConstraint(Sketcher.Constraint("Tangent", 18, 2, 19, 1))
sketch3.addConstraint(Sketcher.Constraint("Tangent", 19, 2, 16, 1))
sketch3.addConstraint(Sketcher.Constraint("Vertical", 0))
sketch3.addConstraint(Sketcher.Constraint("Vertical", 2))
sketch3.addConstraint(Sketcher.Constraint("Vertical", 4))
sketch3.addConstraint(Sketcher.Constraint("Vertical", 6))
sketch3.addConstraint(Sketcher.Constraint("Vertical", 8))
sketch3.addConstraint(Sketcher.Constraint("Vertical", 10))
sketch3.addConstraint(Sketcher.Constraint("Vertical", 12))
sketch3.addConstraint(Sketcher.Constraint("Vertical", 14))
sketch3.addConstraint(Sketcher.Constraint("Vertical", 16))
sketch3.addConstraint(Sketcher.Constraint("Vertical", 18))
sketch3.addConstraint(Sketcher.Constraint("Equal", 3, 5))
sketch3.addConstraint(Sketcher.Constraint("Equal", 7, 9))
sketch3.addConstraint(Sketcher.Constraint("Equal", 11, 13))
sketch3.addConstraint(Sketcher.Constraint("Equal", 15, 17))
sketch3.addConstraint(Sketcher.Constraint("Horizontal", 1, 3, 5, 3))
sketch3.addConstraint(Sketcher.Constraint("Horizontal", 3, 3, 7, 3))
sketch3.addConstraint(Sketcher.Constraint("Horizontal", 5, 3, 9, 3))
sketch3.addConstraint(Sketcher.Constraint("Horizontal", 7, 3, 11, 3))
sketch3.addConstraint(Sketcher.Constraint("Horizontal", 9, 3, 13, 3))
sketch3.addConstraint(Sketcher.Constraint("Horizontal", 11, 3, 15, 3))
sketch3.addConstraint(Sketcher.Constraint("Horizontal", 13, 3, 17, 3))
sketch3.addConstraint(Sketcher.Constraint("Horizontal", 15, 3, 19, 3))
sketch3.addConstraint(Sketcher.Constraint("Radius", 1, Q("2.5 mm")))
sketch3.addConstraint(Sketcher.Constraint("DistanceX", 1, 3, 5, 3, Q("10 mm")))
sketch3.addConstraint(Sketcher.Constraint("DistanceX", 5, 3, 9, 3, Q("10 mm")))
sketch3.addConstraint(Sketcher.Constraint("DistanceX", 9, 3, 13, 3, Q("10 mm")))
sketch3.addConstraint(Sketcher.Constraint("DistanceX", 13, 3, 17, 3, Q("10 mm")))
sketch3.addConstraint(Sketcher.Constraint("DistanceY", 0, 1, 0, 2, Q("79.967864 mm")))
sketch3.addConstraint(Sketcher.Constraint("DistanceX", 1, 3, -1, 1, Q("96.941061 mm")))
sketch3.addConstraint(Sketcher.Constraint("DistanceY", -1, 1, 1, 3, Q("29.935232 mm")))
pocket2 = body.newObject("PartDesign::Pocket", "Pocket001")
pocket2.Profile = sketch3
pocket2.Length = 51

# Sketch on XY plane
sketch4 = body.newObject("Sketcher::SketchObject", "Sketch003")
sketch4.AttachmentSupport = (doc.getObject("XY_Plane"), [""])
sketch4.MapMode = "FlatFace"
sketch4.AttachmentOffset = App.Placement(App.Vector(0, 0, 51), App.Rotation())
add_polygon(sketch4, [(-124.243028, 53), (-124.243028, -53), (-105.405851, -53), (-105.405851, 53)])  # lines 0-3
sketch4.addConstraint(Sketcher.Constraint("Vertical", 0))
sketch4.addConstraint(Sketcher.Constraint("Horizontal", 1))
sketch4.addConstraint(Sketcher.Constraint("Vertical", 2))
sketch4.addConstraint(Sketcher.Constraint("Horizontal", 3))
sketch4.addConstraint(Sketcher.Constraint("DistanceY", 0, 2, 0, 1, Q("106 mm")))
sketch4.addConstraint(Sketcher.Constraint("DistanceY", 0, 2, -1, 1, Q("53 mm")))
sketch4.addConstraint(Sketcher.Constraint("DistanceX", 1, 1, 1, 2, Q("18.837177 mm")))
sketch4.addConstraint(Sketcher.Constraint("DistanceX", 1, 2, -1, 1, Q("105.405851 mm")))
pocket3 = body.newObject("PartDesign::Pocket", "Pocket002")
pocket3.Profile = sketch4
pocket3.Length = 39

# Sketch on XY plane
sketch5 = body.newObject("Sketcher::SketchObject", "Sketch004")
sketch5.AttachmentSupport = (doc.getObject("XY_Plane"), [""])
sketch5.MapMode = "FlatFace"
add_polygon(sketch5, [(-98.653704, 62.5), (-98.653704, 56.5), (-92.653704, 56.5), (-92.653704, 62.5)])  # lines 0-3
add_polygon(sketch5, [(73.020222, 62.5), (73.020222, 56.5), (79.020222, 56.5), (79.020222, 62.5)])  # lines 4-7
sketch5.addConstraint(Sketcher.Constraint("Vertical", 0))
sketch5.addConstraint(Sketcher.Constraint("Horizontal", 1))
sketch5.addConstraint(Sketcher.Constraint("Vertical", 2))
sketch5.addConstraint(Sketcher.Constraint("Horizontal", 3))
sketch5.addConstraint(Sketcher.Constraint("Vertical", 4))
sketch5.addConstraint(Sketcher.Constraint("Horizontal", 5))
sketch5.addConstraint(Sketcher.Constraint("Vertical", 6))
sketch5.addConstraint(Sketcher.Constraint("Horizontal", 7))
sketch5.addConstraint(Sketcher.Constraint("Horizontal", 1, 2, 4, 2))
sketch5.addConstraint(Sketcher.Constraint("Horizontal", 3, 2, 6, 2))
sketch5.addConstraint(Sketcher.Constraint("Equal", 3, 5))
sketch5.addConstraint(Sketcher.Constraint("Equal", 7, 0))
sketch5.addConstraint(Sketcher.Constraint("DistanceX", 1, 1, 1, 2, Q("6 mm")))
sketch5.addConstraint(Sketcher.Constraint("DistanceY", -1, 1, 0, 2, Q("56.5 mm")))
sketch5.addConstraint(Sketcher.Constraint("DistanceX", -1, 1, 4, 2, Q("73.020222 mm")))
sketch5.addConstraint(Sketcher.Constraint("DistanceX", 0, 2, -1, 1, Q("98.653704 mm")))
pad2 = body.newObject("PartDesign::Pad", "Pad001")
pad2.Profile = sketch5
pad2.Length = 2

# Sketch on XY plane
sketch6 = body.newObject("Sketcher::SketchObject", "Sketch005")
sketch6.AttachmentSupport = (doc.getObject("XY_Plane"), [""])
sketch6.MapMode = "FlatFace"
sketch6.AttachmentOffset = App.Placement(App.Vector(0, 0, 2), App.Rotation())
sketch6.addGeometry(Part.Circle(App.Vector(-95.653704, 59.5, 0), App.Vector(0, 0, 1), 1.5), False)
sketch6.addConstraint(Sketcher.Constraint("Diameter", 0, Q("3 mm")))
sketch6.addConstraint(Sketcher.Constraint("DistanceY", -1, 1, 0, 3, Q("59.5 mm")))
sketch6.addConstraint(Sketcher.Constraint("DistanceX", 0, 3, -1, 1, Q("95.653704 mm")))
pocket4 = body.newObject("PartDesign::Pocket", "Pocket003")
pocket4.Profile = sketch6
pocket4.Type = "ThroughAll"

# Sketch on XY plane
sketch7 = body.newObject("Sketcher::SketchObject", "Sketch006")
sketch7.AttachmentSupport = (doc.getObject("XY_Plane"), [""])
sketch7.MapMode = "FlatFace"
sketch7.AttachmentOffset = App.Placement(App.Vector(0, 0, 2), App.Rotation())
sketch7.addGeometry(Part.Circle(App.Vector(76.020222, 59.5, 0), App.Vector(0, 0, 1), 1.5), False)
sketch7.addConstraint(Sketcher.Constraint("Diameter", 0, Q("3 mm")))
sketch7.addConstraint(Sketcher.Constraint("DistanceY", -1, 1, 0, 3, Q("59.5 mm")))
sketch7.addConstraint(Sketcher.Constraint("DistanceX", -1, 1, 0, 3, Q("76.020222 mm")))
pocket5 = body.newObject("PartDesign::Pocket", "Pocket004")
pocket5.Profile = sketch7
pocket5.Type = "ThroughAll"

# Sketch on XY plane
sketch8 = body.newObject("Sketcher::SketchObject", "Sketch007")
sketch8.AttachmentSupport = (doc.getObject("XY_Plane"), [""])
sketch8.MapMode = "FlatFace"
add_polygon(sketch8, [(-98.653028, -56.5), (-98.653028, -62.5), (-92.653028, -62.5), (-92.653028, -56.5)])  # lines 0-3
add_polygon(sketch8, [(73.016972, -56.5), (73.016972, -62.5), (79.016972, -62.5), (79.016972, -56.5)])  # lines 4-7
sketch8.addConstraint(Sketcher.Constraint("Vertical", 0))
sketch8.addConstraint(Sketcher.Constraint("Horizontal", 1))
sketch8.addConstraint(Sketcher.Constraint("Vertical", 2))
sketch8.addConstraint(Sketcher.Constraint("Horizontal", 3))
sketch8.addConstraint(Sketcher.Constraint("Vertical", 4))
sketch8.addConstraint(Sketcher.Constraint("Horizontal", 5))
sketch8.addConstraint(Sketcher.Constraint("Vertical", 6))
sketch8.addConstraint(Sketcher.Constraint("Horizontal", 7))
sketch8.addConstraint(Sketcher.Constraint("Horizontal", 1, 2, 4, 2))
sketch8.addConstraint(Sketcher.Constraint("Horizontal", 3, 2, 6, 2))
sketch8.addConstraint(Sketcher.Constraint("Equal", 3, 5))
sketch8.addConstraint(Sketcher.Constraint("Equal", 7, 0))
sketch8.addConstraint(Sketcher.Constraint("DistanceX", 1, 1, 1, 2, Q("6 mm")))
sketch8.addConstraint(Sketcher.Constraint("DistanceY", 0, 2, -1, 1, Q("62.5 mm")))
sketch8.addConstraint(Sketcher.Constraint("DistanceX", 1, 2, 4, 2, Q("165.67 mm")))
sketch8.addConstraint(Sketcher.Constraint("DistanceX", 0, 2, -1, 1, Q("98.653028 mm")))
pad3 = body.newObject("PartDesign::Pad", "Pad002")
pad3.Profile = sketch8
pad3.Length = 2

# Sketch on XY plane
sketch9 = body.newObject("Sketcher::SketchObject", "Sketch008")
sketch9.AttachmentSupport = (doc.getObject("XY_Plane"), [""])
sketch9.MapMode = "FlatFace"
sketch9.AttachmentOffset = App.Placement(App.Vector(0, 0, 2), App.Rotation())
sketch9.addGeometry(Part.Circle(App.Vector(-95.653028, -59.5, 0), App.Vector(0, 0, 1), 1.5), False)
sketch9.addGeometry(Part.Circle(App.Vector(76.016972, -59.5, 0), App.Vector(0, 0, 1), 1.5), False)
sketch9.addConstraint(Sketcher.Constraint("Equal", 0, 1))
sketch9.addConstraint(Sketcher.Constraint("Horizontal", 0, 3, 1, 3))
sketch9.addConstraint(Sketcher.Constraint("Diameter", 0, Q("3 mm")))
sketch9.addConstraint(Sketcher.Constraint("DistanceY", 0, 3, -1, 1, Q("59.5 mm")))
sketch9.addConstraint(Sketcher.Constraint("DistanceX", 0, 3, 1, 3, Q("171.67 mm")))
sketch9.addConstraint(Sketcher.Constraint("DistanceX", 0, 3, -1, 1, Q("95.653028 mm")))
pocket6 = body.newObject("PartDesign::Pocket", "Pocket005")
pocket6.Profile = sketch9
pocket6.Type = "ThroughAll"

doc.recompute()
